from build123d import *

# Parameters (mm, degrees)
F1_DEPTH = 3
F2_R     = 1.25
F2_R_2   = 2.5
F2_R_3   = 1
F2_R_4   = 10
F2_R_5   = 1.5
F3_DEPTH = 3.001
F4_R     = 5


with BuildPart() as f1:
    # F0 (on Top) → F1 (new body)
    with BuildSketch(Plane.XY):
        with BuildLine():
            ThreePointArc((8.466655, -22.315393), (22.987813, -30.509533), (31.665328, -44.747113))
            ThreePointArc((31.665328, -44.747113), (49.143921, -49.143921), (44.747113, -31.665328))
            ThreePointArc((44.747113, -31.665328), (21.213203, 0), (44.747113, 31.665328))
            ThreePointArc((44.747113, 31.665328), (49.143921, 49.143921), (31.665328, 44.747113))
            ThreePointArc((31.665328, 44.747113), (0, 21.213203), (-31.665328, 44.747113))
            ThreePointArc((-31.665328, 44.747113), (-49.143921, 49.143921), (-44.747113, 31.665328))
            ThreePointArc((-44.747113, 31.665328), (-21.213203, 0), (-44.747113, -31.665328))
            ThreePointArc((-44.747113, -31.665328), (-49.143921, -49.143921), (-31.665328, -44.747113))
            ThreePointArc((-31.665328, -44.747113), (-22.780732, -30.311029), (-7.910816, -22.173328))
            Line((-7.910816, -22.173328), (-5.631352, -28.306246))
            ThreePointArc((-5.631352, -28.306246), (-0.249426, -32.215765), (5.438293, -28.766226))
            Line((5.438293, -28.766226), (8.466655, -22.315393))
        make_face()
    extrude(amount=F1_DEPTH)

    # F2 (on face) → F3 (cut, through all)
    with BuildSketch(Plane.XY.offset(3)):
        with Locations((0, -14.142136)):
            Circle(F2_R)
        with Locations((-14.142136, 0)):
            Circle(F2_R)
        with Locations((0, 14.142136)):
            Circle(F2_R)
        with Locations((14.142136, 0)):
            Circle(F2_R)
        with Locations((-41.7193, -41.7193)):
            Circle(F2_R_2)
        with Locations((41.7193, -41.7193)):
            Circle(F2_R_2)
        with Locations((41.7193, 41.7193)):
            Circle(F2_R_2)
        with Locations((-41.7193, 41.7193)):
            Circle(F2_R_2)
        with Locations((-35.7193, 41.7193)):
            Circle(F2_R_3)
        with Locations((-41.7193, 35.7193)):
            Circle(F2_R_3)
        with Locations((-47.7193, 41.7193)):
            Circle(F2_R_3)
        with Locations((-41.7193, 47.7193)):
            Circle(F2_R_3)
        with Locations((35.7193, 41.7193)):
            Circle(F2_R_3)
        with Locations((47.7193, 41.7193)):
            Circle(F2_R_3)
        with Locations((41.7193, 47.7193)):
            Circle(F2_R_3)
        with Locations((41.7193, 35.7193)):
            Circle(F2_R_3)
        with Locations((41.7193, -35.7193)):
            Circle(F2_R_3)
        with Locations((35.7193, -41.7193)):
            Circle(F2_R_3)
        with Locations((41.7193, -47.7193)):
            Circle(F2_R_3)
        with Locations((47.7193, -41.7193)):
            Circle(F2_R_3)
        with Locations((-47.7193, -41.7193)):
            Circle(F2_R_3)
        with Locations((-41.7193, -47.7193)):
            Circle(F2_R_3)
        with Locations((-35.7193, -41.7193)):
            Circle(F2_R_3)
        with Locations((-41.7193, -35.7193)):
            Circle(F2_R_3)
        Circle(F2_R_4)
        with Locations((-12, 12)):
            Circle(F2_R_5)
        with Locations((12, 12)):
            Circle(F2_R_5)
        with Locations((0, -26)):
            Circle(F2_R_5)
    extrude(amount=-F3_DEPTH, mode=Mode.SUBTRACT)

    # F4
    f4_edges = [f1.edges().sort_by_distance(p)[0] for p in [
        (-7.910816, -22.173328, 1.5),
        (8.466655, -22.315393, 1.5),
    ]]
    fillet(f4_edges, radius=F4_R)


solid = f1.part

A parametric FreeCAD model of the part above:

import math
import FreeCAD as App
import Part
import Sketcher

V = App.Vector
Q = App.Units.Quantity


def edges_at(feature, points):
    """Names of the edges that pass closest to the given points."""
    edges = feature.Shape.Edges
    near = lambda p: min(range(len(edges)), key=lambda i: edges[i].distToShape(Part.Vertex(*p))[0])
    return sorted({f"Edge{near(p) + 1}" for p in points})

doc = App.newDocument("Part")
body = doc.addObject("PartDesign::Body", "Body")

# Sketch on XY plane
sketch1 = body.newObject("Sketcher::SketchObject", "Sketch")
sketch1.AttachmentSupport = (doc.getObject("XY_Plane"), [""])
sketch1.MapMode = "FlatFace"
sketch1.addGeometry([
    Part.ArcOfCircle(Part.Circle(V(0, -54, 0), V(0, 0, 1), 33), math.radians(17), math.radians(75)),  # 0
    Part.ArcOfCircle(Part.Circle(V(42, -42, 0), V(0, 0, 1), 11), math.radians(-163), math.radians(73)),  # 1
    Part.ArcOfCircle(Part.Circle(V(54, 0, 0), V(0, 0, 1), 33), math.radians(107), math.radians(253)),  # 2
    Part.ArcOfCircle(Part.Circle(V(42, 42, 0), V(0, 0, 1), 11), math.radians(-73), math.radians(163)),  # 3
    Part.ArcOfCircle(Part.Circle(V(0, 54, 0), V(0, 0, 1), 33), math.radians(-163), math.radians(-17)),  # 4
    Part.ArcOfCircle(Part.Circle(V(-42, 42, 0), V(0, 0, 1), 11), math.radians(17), math.radians(253)),  # 5
    Part.ArcOfCircle(Part.Circle(V(-54, 0, 0), V(0, 0, 1), 33), math.radians(-73), math.radians(73)),  # 6
    Part.ArcOfCircle(Part.Circle(V(-42, -42, 0), V(0, 0, 1), 11), math.radians(107), math.radians(343)),  # 7
    Part.ArcOfCircle(Part.Circle(V(0, -54, 0), V(0, 0, 1), 33), math.radians(104), math.radians(163)),  # 8
    Part.LineSegment(V(-8, -22, 0), V(-6, -28, 0)),  # 9
    Part.ArcOfCircle(Part.Circle(V(0, -26, 0), V(0, 0, 1), 6), math.radians(-160), math.radians(-25)),  # 10
    Part.LineSegment(V(5, -29, 0), V(8, -22, 0)),  # 11
], False)
sketch1.addConstraint([
    Sketcher.Constraint("Tangent", 0, 1, 1, 1),
    Sketcher.Constraint("Tangent", 1, 2, 2, 2),
    Sketcher.Constraint("Tangent", 2, 1, 3, 1),
    Sketcher.Constraint("Tangent", 3, 2, 4, 2),
    Sketcher.Constraint("Tangent", 4, 1, 5, 1),
    Sketcher.Constraint("Tangent", 5, 2, 6, 2),
    Sketcher.Constraint("Tangent", 6, 1, 7, 1),
    Sketcher.Constraint("Tangent", 7, 2, 8, 2),
    Sketcher.Constraint("Coincident", 8, 1, 9, 1),
    Sketcher.Constraint("Tangent", 9, 2, 10, 1),
    Sketcher.Constraint("Tangent", 10, 2, 11, 1),
    Sketcher.Constraint("Coincident", 11, 2, 0, 2),
    Sketcher.Constraint("Coincident", 8, 3, 0, 3),
    Sketcher.Constraint("Equal", 1, 3),
    Sketcher.Constraint("Equal", 2, 4),
    Sketcher.Constraint("Equal", 3, 5),
    Sketcher.Constraint("Equal", 4, 6),
    Sketcher.Constraint("Equal", 5, 7),
    Sketcher.Constraint("Equal", 6, 8),
    Sketcher.Constraint("Symmetric", 0, 3, 4, 3, -1, 1),
    Sketcher.Constraint("Symmetric", 1, 3, 5, 3, -1, 1),
    Sketcher.Constraint("Symmetric", 3, 3, 5, 3, -2),
    Sketcher.Constraint("PointOnObject", 6, 3, -1),
    Sketcher.Constraint("PointOnObject", 10, 3, -2),
    Sketcher.Constraint("Radius", 1, Q("10.5 mm")),
    Sketcher.Constraint("Radius", 2, Q("33.070109 mm")),
    Sketcher.Constraint("Radius", 10, Q("6.007741 mm")),
    Sketcher.Constraint("DistanceY", 6, 1, 8, 1, Q("9.492 mm")),
    Sketcher.Constraint("DistanceX", -1, 1, 1, 3, Q("41.7193 mm")),
    Sketcher.Constraint("DistanceY", 1, 3, -1, 1, Q("41.7193 mm")),
    Sketcher.Constraint("Distance", 9, Q("6.542831 mm")),
    Sketcher.Constraint("DistanceY", 10, 2, 10, 3, Q("2.553022 mm")),
])
pad1 = body.newObject("PartDesign::Pad", "Pad")
pad1.Profile = sketch1
pad1.Length = 3

# Sketch on XY plane
sketch2 = body.newObject("Sketcher::SketchObject", "Sketch001")
sketch2.AttachmentSupport = (doc.getObject("XY_Plane"), [""])
sketch2.MapMode = "FlatFace"
sketch2.AttachmentOffset = App.Placement(V(0, 0, 3), App.Rotation())
sketch2.addGeometry([
    Part.Circle(V(0, -14.1, 0), V(0, 0, 1), 1.2),  # 0
    Part.Circle(V(-14.1, 0, 0), V(0, 0, 1), 1.2),  # 1
    Part.Circle(V(0, 14.1, 0), V(0, 0, 1), 1.2),  # 2
    Part.Circle(V(14.1, 0, 0), V(0, 0, 1), 1.2),  # 3
    Part.Circle(V(-41.7, -41.7, 0), V(0, 0, 1), 2.5),  # 4
    Part.Circle(V(41.7, -41.7, 0), V(0, 0, 1), 2.5),  # 5
    Part.Circle(V(41.7, 41.7, 0), V(0, 0, 1), 2.5),  # 6
    Part.Circle(V(-41.7, 41.7, 0), V(0, 0, 1), 2.5),  # 7
    Part.Circle(V(-35.7, 41.7, 0), V(0, 0, 1), 1),  # 8
    Part.Circle(V(-41.7, 35.7, 0), V(0, 0, 1), 1),  # 9
    Part.Circle(V(-47.7, 41.7, 0), V(0, 0, 1), 1),  # 10
    Part.Circle(V(-41.7, 47.7, 0), V(0, 0, 1), 1),  # 11
    Part.Circle(V(35.7, 41.7, 0), V(0, 0, 1), 1),  # 12
    Part.Circle(V(47.7, 41.7, 0), V(0, 0, 1), 1),  # 13
    Part.Circle(V(41.7, 47.7, 0), V(0, 0, 1), 1),  # 14
    Part.Circle(V(41.7, 35.7, 0), V(0, 0, 1), 1),  # 15
    Part.Circle(V(41.7, -35.7, 0), V(0, 0, 1), 1),  # 16
    Part.Circle(V(35.7, -41.7, 0), V(0, 0, 1), 1),  # 17
    Part.Circle(V(41.7, -47.7, 0), V(0, 0, 1), 1),  # 18
    Part.Circle(V(47.7, -41.7, 0), V(0, 0, 1), 1),  # 19
    Part.Circle(V(-47.7, -41.7, 0), V(0, 0, 1), 1),  # 20
    Part.Circle(V(-41.7, -47.7, 0), V(0, 0, 1), 1),  # 21
    Part.Circle(V(-35.7, -41.7, 0), V(0, 0, 1), 1),  # 22
    Part.Circle(V(-41.7, -35.7, 0), V(0, 0, 1), 1),  # 23
    Part.Circle(V(0, 0, 0), V(0, 0, 1), 10),  # 24
    Part.Circle(V(-12, 12, 0), V(0, 0, 1), 1.5),  # 25
    Part.Circle(V(12, 12, 0), V(0, 0, 1), 1.5),  # 26
    Part.Circle(V(0, -26, 0), V(0, 0, 1), 1.5),  # 27
], False)
sketch2.addConstraint([
    Sketcher.Constraint("Coincident", 24, 3, -1, 1),
    Sketcher.Constraint("Equal", 0, 1),
    Sketcher.Constraint("Equal", 1, 2),
    Sketcher.Constraint("Equal", 2, 3),
    Sketcher.Constraint("Equal", 4, 5),
    Sketcher.Constraint("Equal", 5, 6),
    Sketcher.Constraint("Equal", 6, 7),
    Sketcher.Constraint("Equal", 8, 9),
    Sketcher.Constraint("Equal", 9, 10),
    Sketcher.Constraint("Equal", 10, 11),
    Sketcher.Constraint("Equal", 11, 12),
    Sketcher.Constraint("Equal", 12, 13),
    Sketcher.Constraint("Equal", 13, 14),
    Sketcher.Constraint("Equal", 14, 15),
    Sketcher.Constraint("Equal", 15, 16),
    Sketcher.Constraint("Equal", 16, 17),
    Sketcher.Constraint("Equal", 17, 18),
    Sketcher.Constraint("Equal", 18, 19),
    Sketcher.Constraint("Equal", 19, 20),
    Sketcher.Constraint("Equal", 20, 21),
    Sketcher.Constraint("Equal", 21, 22),
    Sketcher.Constraint("Equal", 22, 23),
    Sketcher.Constraint("Equal", 25, 26),
    Sketcher.Constraint("Equal", 26, 27),
    Sketcher.Constraint("Symmetric", 0, 3, 2, 3, -1, 1),
    Sketcher.Constraint("Symmetric", 1, 3, 3, 3, -1, 1),
    Sketcher.Constraint("Symmetric", 4, 3, 6, 3, -1, 1),
    Sketcher.Constraint("Symmetric", 5, 3, 7, 3, -1, 1),
    Sketcher.Constraint("Symmetric", 9, 3, 16, 3, -1, 1),
    Sketcher.Constraint("Symmetric", 8, 3, 17, 3, -1, 1),
    Sketcher.Constraint("Symmetric", 11, 3, 18, 3, -1, 1),
    Sketcher.Constraint("Symmetric", 10, 3, 19, 3, -1, 1),
    Sketcher.Constraint("Symmetric", 13, 3, 20, 3, -1, 1),
    Sketcher.Constraint("Symmetric", 14, 3, 21, 3, -1, 1),
    Sketcher.Constraint("Symmetric", 12, 3, 22, 3, -1, 1),
    Sketcher.Constraint("Symmetric", 15, 3, 23, 3, -1, 1),
    Sketcher.Constraint("Symmetric", 4, 3, 5, 3, -2),
    Sketcher.Constraint("Symmetric", 8, 3, 12, 3, -2),
    Sketcher.Constraint("Symmetric", 10, 3, 13, 3, -2),
    Sketcher.Constraint("Symmetric", 11, 3, 14, 3, -2),
    Sketcher.Constraint("Symmetric", 9, 3, 15, 3, -2),
    Sketcher.Constraint("Symmetric", 25, 3, 26, 3, -2),
    Sketcher.Constraint("PointOnObject", 0, 3, -2),
    Sketcher.Constraint("PointOnObject", 1, 3, -1),
    Sketcher.Constraint("PointOnObject", 27, 3, -2),
    Sketcher.Constraint("Horizontal", 7, 3, 8, 3),
    Sketcher.Constraint("Horizontal", 8, 3, 10, 3),
    Sketcher.Constraint("Vertical", 7, 3, 9, 3),
    Sketcher.Constraint("Vertical", 9, 3, 11, 3),
    Sketcher.Constraint("Diameter", 4, Q("5 mm")),
    Sketcher.Constraint("Diameter", 8, Q("2 mm")),
    Sketcher.Constraint("Diameter", 24, Q("20 mm")),
    Sketcher.Constraint("Diameter", 25, Q("3 mm")),
    Sketcher.Constraint("Diameter", 0, Q("2.5 mm")),
    Sketcher.Constraint("DistanceX", 25, 3, -1, 1, Q("12 mm")),
    Sketcher.Constraint("DistanceY", -1, 1, 25, 3, Q("12 mm")),
    Sketcher.Constraint("DistanceY", 27, 3, -1, 1, Q("26 mm")),
    Sketcher.Constraint("DistanceX", 7, 3, 8, 3, Q("6 mm")),
    Sketcher.Constraint("DistanceY", 9, 3, 7, 3, Q("6 mm")),
    Sketcher.Constraint("DistanceX", 10, 3, 7, 3, Q("6 mm")),
    Sketcher.Constraint("DistanceY", 7, 3, 11, 3, Q("6 mm")),
    Sketcher.Constraint("DistanceX", 4, 3, -1, 1, Q("41.7193 mm")),
    Sketcher.Constraint("DistanceY", 4, 3, -1, 1, Q("41.7193 mm")),
    Sketcher.Constraint("DistanceY", 0, 3, -1, 1, Q("14.142136 mm")),
    Sketcher.Constraint("DistanceX", 1, 3, -1, 1, Q("14.142136 mm")),
])
pocket1 = body.newObject("PartDesign::Pocket", "Pocket")
pocket1.Profile = sketch2
pocket1.Type = "ThroughAll"
doc.recompute()

fillet = body.newObject("PartDesign::Fillet", "Fillet")
fillet.Base = (pocket1, edges_at(pocket1, [(-7.911, -22.173, 1.5), (8.467, -22.315, 1.5)]))
fillet.Radius = 5

doc.recompute()
